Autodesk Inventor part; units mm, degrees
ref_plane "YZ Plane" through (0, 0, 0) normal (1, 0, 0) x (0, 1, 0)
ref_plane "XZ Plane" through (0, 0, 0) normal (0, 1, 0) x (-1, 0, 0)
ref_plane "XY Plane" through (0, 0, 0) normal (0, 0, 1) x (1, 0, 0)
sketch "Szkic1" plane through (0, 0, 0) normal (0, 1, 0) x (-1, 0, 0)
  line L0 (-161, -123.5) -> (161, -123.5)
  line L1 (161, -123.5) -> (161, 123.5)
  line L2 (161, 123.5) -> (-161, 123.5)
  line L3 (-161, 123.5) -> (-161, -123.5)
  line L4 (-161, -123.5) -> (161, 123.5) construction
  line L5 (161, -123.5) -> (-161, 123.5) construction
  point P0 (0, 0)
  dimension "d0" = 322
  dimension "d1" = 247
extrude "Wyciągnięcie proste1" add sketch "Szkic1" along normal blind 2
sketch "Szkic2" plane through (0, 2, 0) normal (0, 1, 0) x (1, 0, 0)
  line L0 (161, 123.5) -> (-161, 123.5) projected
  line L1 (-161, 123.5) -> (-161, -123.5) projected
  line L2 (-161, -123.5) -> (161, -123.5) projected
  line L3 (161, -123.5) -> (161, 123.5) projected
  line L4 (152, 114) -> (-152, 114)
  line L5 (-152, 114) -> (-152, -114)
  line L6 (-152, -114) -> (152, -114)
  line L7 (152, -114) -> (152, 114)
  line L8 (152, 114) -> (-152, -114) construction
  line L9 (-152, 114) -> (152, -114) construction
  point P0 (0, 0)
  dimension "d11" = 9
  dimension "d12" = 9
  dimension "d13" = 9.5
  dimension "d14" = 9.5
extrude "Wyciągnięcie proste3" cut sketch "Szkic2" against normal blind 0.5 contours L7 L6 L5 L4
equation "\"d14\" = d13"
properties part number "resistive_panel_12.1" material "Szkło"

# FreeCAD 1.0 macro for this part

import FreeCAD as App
import Part
import Sketcher
from FreeCAD import Vector
Q = App.Units.Quantity


def add_polygon(sketch, points):
    """Adds a closed chain of lines whose ends are joined by coincident constraints."""
    first, n = sketch.GeometryCount, len(points)
    for a, b in zip(points, points[1:] + points[:1]):
        sketch.addGeometry(Part.LineSegment(App.Vector(*a, 0), App.Vector(*b, 0)), False)
    for i in range(n):
        sketch.addConstraint(Sketcher.Constraint("Coincident", first + i, 2, first + (i + 1) % n, 1))

doc = App.newDocument("Part")
body = doc.addObject("PartDesign::Body", "Body")

sketch1 = doc.addObject("Sketcher::SketchObject", "Sketch")
body.addObject(sketch1)
sketch1.AttachmentSupport = (doc.XZ_Plane, [""])
sketch1.MapMode = "FlatFace"
add_polygon(sketch1, [(161, 124), (161, -124), (-161, -124), (-161, 124)])
sketch1.addConstraint(Sketcher.Constraint("Vertical", 0))
sketch1.addConstraint(Sketcher.Constraint("Horizontal", 1))
sketch1.addConstraint(Sketcher.Constraint("Vertical", 2))
sketch1.addConstraint(Sketcher.Constraint("Horizontal", 3))
sketch1.addConstraint(Sketcher.Constraint("Symmetric", 0, 2, 2, 2, -1, 1))
sketch1.addConstraint(Sketcher.Constraint("DistanceX", 1, 2, 1, 1, Q("322 mm")))
sketch1.addConstraint(Sketcher.Constraint("DistanceY", 0, 2, 0, 1, Q("247 mm")))
pad1 = doc.addObject("PartDesign::Pad", "Pad")
body.addObject(pad1)
pad1.Profile = sketch1
pad1.Length = 2
pad1.Reversed = True

sketch2 = doc.addObject("Sketcher::SketchObject", "Sketch001")
body.addObject(sketch2)
sketch2.AttachmentSupport = (doc.XZ_Plane, [""])
sketch2.MapMode = "FlatFace"
sketch2.AttachmentOffset = App.Placement(Vector(0, 0, -2), App.Rotation())
add_polygon(sketch2, [(152, 114), (152, -114), (-152, -114), (-152, 114)])
sketch2.addConstraint(Sketcher.Constraint("Vertical", 0))
sketch2.addConstraint(Sketcher.Constraint("Horizontal", 1))
sketch2.addConstraint(Sketcher.Constraint("Vertical", 2))
sketch2.addConstraint(Sketcher.Constraint("Horizontal", 3))
sketch2.addConstraint(Sketcher.Constraint("Symmetric", 0, 2, 2, 2, -1, 1))
sketch2.addConstraint(Sketcher.Constraint("DistanceX", 1, 2, 1, 1, Q("304 mm")))
sketch2.addConstraint(Sketcher.Constraint("DistanceY", 0, 2, 0, 1, Q("228 mm")))
pocket1 = doc.addObject("PartDesign::Pocket", "Pocket")
body.addObject(pocket1)
pocket1.Profile = sketch2
pocket1.Length = 0.5
pocket1.Reversed = True

doc.recompute()
